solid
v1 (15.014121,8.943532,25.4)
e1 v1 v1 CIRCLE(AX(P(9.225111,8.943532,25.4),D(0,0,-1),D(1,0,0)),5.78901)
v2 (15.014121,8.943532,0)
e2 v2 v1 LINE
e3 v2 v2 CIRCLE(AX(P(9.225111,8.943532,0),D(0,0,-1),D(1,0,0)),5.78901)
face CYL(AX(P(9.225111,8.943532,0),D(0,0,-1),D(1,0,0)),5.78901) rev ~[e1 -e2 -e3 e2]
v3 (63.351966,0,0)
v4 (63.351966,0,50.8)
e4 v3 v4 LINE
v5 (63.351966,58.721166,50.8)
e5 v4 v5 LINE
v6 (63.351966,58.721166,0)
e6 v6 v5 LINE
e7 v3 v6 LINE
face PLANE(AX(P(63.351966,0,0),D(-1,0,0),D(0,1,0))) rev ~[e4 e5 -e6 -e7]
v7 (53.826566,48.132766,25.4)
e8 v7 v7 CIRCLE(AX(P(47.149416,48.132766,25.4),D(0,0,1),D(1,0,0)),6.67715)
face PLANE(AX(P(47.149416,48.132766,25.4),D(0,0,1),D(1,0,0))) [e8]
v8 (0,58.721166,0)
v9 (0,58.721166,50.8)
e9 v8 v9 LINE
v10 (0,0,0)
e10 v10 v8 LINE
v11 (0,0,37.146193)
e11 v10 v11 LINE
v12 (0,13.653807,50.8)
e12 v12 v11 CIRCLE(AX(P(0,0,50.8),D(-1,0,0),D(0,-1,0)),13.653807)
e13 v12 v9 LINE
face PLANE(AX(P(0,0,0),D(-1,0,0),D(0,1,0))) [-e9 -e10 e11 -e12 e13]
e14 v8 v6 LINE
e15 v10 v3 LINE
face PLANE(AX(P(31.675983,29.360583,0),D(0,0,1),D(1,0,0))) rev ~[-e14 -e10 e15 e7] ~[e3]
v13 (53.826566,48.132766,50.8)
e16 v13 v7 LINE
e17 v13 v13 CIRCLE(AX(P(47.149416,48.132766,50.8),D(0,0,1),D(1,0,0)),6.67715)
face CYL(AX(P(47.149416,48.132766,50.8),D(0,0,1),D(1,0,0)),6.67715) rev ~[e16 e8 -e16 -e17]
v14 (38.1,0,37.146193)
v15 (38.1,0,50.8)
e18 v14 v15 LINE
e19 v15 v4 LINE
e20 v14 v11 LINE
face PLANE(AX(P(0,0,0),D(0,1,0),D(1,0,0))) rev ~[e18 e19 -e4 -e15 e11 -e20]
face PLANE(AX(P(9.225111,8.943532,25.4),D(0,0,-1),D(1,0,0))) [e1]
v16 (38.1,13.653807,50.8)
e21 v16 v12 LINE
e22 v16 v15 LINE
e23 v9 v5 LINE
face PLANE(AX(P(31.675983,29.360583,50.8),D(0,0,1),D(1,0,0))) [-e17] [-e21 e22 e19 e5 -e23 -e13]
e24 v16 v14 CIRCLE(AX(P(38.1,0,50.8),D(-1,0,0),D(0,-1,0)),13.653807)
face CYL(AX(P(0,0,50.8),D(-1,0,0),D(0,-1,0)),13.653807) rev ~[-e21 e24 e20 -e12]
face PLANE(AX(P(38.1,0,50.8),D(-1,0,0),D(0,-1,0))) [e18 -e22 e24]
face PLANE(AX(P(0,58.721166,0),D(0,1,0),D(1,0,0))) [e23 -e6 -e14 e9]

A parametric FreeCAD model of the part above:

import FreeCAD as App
import Part
import Sketcher

V = App.Vector
Q = App.Units.Quantity


def add_polygon(sketch, points):
    """Adds a closed chain of lines whose ends are joined by coincident constraints."""
    first, n = sketch.GeometryCount, len(points)
    for a, b in zip(points, points[1:] + points[:1]):
        sketch.addGeometry(Part.LineSegment(App.Vector(*a, 0), App.Vector(*b, 0)), False)
    for i in range(n):
        sketch.addConstraint(Sketcher.Constraint("Coincident", first + i, 2, first + (i + 1) % n, 1))

doc = App.newDocument("Part")
body = doc.addObject("PartDesign::Body", "Body")

# Sketch on XY plane
sketch1 = body.newObject("Sketcher::SketchObject", "Sketch")
sketch1.AttachmentSupport = (doc.getObject("XY_Plane"), [""])
sketch1.MapMode = "FlatFace"
add_polygon(sketch1, [(0, 59), (0, 0), (63, 0), (63, 59)])  # lines 0-3
sketch1.addConstraint([
    Sketcher.Constraint("Vertical", 0),
    Sketcher.Constraint("Horizontal", 1),
    Sketcher.Constraint("Vertical", 2),
    Sketcher.Constraint("Horizontal", 3),
    Sketcher.Constraint("Coincident", 0, 2, -1, 1),
    Sketcher.Constraint("DistanceX", 1, 1, 1, 2, 63.351966),
    Sketcher.Constraint("DistanceY", 0, 2, 0, 1, 58.721166),
])
pad1 = body.newObject("PartDesign::Pad", "Pad")
pad1.Profile = sketch1
pad1.Length = Q("2 in")

# Sketch on XY plane
sketch2 = body.newObject("Sketcher::SketchObject", "Sketch001")
sketch2.AttachmentSupport = (doc.getObject("XY_Plane"), [""])
sketch2.MapMode = "FlatFace"
sketch2.AttachmentOffset = App.Placement(V(0, 0, 2 * 25.4), App.Rotation())
sketch2.addGeometry(Part.Circle(V(47, 48, 0), V(0, 0, 1), 7), False)
sketch2.addConstraint([
    Sketcher.Constraint("Diameter", 0, 13.3543),
    Sketcher.Constraint("DistanceX", -1, 1, 0, 3, 47.149416),
    Sketcher.Constraint("DistanceY", -1, 1, 0, 3, 48.132766),
])
pocket1 = body.newObject("PartDesign::Pocket", "Pocket")
pocket1.Profile = sketch2
pocket1.Length = Q("1 in")

# Sketch on XY plane
sketch3 = body.newObject("Sketcher::SketchObject", "Sketch002")
sketch3.AttachmentSupport = (doc.getObject("XY_Plane"), [""])
sketch3.MapMode = "FlatFace"
sketch3.addGeometry(Part.Circle(V(9, 9, 0), V(0, 0, 1), 6), False)
sketch3.addConstraint([
    Sketcher.Constraint("Diameter", 0, 11.57802),
    Sketcher.Constraint("DistanceX", -1, 1, 0, 3, 9.225111),
    Sketcher.Constraint("DistanceY", -1, 1, 0, 3, 8.943532),
])
pocket2 = body.newObject("PartDesign::Pocket", "Pocket001")
pocket2.Profile = sketch3
pocket2.Length = Q("1 in")
pocket2.Reversed = True

# Sketch on YZ plane
sketch4 = body.newObject("Sketcher::SketchObject", "Sketch003")
sketch4.AttachmentSupport = (doc.getObject("YZ_Plane"), [""])
sketch4.MapMode = "FlatFace"
sketch4.addGeometry(Part.Circle(V(0, 51, 0), V(0, 0, 1), 14), False)
sketch4.addConstraint([
    Sketcher.Constraint("PointOnObject", 0, 3, -2),
    Sketcher.Constraint("DistanceY", -1, 1, 0, 3, Q("2 in")),
    Sketcher.Constraint("Diameter", 0, 27.307614),
])
pocket3 = body.newObject("PartDesign::Pocket", "Pocket002")
pocket3.Profile = sketch4
pocket3.Length = Q("1.5 in")
pocket3.Reversed = True

doc.recompute()
